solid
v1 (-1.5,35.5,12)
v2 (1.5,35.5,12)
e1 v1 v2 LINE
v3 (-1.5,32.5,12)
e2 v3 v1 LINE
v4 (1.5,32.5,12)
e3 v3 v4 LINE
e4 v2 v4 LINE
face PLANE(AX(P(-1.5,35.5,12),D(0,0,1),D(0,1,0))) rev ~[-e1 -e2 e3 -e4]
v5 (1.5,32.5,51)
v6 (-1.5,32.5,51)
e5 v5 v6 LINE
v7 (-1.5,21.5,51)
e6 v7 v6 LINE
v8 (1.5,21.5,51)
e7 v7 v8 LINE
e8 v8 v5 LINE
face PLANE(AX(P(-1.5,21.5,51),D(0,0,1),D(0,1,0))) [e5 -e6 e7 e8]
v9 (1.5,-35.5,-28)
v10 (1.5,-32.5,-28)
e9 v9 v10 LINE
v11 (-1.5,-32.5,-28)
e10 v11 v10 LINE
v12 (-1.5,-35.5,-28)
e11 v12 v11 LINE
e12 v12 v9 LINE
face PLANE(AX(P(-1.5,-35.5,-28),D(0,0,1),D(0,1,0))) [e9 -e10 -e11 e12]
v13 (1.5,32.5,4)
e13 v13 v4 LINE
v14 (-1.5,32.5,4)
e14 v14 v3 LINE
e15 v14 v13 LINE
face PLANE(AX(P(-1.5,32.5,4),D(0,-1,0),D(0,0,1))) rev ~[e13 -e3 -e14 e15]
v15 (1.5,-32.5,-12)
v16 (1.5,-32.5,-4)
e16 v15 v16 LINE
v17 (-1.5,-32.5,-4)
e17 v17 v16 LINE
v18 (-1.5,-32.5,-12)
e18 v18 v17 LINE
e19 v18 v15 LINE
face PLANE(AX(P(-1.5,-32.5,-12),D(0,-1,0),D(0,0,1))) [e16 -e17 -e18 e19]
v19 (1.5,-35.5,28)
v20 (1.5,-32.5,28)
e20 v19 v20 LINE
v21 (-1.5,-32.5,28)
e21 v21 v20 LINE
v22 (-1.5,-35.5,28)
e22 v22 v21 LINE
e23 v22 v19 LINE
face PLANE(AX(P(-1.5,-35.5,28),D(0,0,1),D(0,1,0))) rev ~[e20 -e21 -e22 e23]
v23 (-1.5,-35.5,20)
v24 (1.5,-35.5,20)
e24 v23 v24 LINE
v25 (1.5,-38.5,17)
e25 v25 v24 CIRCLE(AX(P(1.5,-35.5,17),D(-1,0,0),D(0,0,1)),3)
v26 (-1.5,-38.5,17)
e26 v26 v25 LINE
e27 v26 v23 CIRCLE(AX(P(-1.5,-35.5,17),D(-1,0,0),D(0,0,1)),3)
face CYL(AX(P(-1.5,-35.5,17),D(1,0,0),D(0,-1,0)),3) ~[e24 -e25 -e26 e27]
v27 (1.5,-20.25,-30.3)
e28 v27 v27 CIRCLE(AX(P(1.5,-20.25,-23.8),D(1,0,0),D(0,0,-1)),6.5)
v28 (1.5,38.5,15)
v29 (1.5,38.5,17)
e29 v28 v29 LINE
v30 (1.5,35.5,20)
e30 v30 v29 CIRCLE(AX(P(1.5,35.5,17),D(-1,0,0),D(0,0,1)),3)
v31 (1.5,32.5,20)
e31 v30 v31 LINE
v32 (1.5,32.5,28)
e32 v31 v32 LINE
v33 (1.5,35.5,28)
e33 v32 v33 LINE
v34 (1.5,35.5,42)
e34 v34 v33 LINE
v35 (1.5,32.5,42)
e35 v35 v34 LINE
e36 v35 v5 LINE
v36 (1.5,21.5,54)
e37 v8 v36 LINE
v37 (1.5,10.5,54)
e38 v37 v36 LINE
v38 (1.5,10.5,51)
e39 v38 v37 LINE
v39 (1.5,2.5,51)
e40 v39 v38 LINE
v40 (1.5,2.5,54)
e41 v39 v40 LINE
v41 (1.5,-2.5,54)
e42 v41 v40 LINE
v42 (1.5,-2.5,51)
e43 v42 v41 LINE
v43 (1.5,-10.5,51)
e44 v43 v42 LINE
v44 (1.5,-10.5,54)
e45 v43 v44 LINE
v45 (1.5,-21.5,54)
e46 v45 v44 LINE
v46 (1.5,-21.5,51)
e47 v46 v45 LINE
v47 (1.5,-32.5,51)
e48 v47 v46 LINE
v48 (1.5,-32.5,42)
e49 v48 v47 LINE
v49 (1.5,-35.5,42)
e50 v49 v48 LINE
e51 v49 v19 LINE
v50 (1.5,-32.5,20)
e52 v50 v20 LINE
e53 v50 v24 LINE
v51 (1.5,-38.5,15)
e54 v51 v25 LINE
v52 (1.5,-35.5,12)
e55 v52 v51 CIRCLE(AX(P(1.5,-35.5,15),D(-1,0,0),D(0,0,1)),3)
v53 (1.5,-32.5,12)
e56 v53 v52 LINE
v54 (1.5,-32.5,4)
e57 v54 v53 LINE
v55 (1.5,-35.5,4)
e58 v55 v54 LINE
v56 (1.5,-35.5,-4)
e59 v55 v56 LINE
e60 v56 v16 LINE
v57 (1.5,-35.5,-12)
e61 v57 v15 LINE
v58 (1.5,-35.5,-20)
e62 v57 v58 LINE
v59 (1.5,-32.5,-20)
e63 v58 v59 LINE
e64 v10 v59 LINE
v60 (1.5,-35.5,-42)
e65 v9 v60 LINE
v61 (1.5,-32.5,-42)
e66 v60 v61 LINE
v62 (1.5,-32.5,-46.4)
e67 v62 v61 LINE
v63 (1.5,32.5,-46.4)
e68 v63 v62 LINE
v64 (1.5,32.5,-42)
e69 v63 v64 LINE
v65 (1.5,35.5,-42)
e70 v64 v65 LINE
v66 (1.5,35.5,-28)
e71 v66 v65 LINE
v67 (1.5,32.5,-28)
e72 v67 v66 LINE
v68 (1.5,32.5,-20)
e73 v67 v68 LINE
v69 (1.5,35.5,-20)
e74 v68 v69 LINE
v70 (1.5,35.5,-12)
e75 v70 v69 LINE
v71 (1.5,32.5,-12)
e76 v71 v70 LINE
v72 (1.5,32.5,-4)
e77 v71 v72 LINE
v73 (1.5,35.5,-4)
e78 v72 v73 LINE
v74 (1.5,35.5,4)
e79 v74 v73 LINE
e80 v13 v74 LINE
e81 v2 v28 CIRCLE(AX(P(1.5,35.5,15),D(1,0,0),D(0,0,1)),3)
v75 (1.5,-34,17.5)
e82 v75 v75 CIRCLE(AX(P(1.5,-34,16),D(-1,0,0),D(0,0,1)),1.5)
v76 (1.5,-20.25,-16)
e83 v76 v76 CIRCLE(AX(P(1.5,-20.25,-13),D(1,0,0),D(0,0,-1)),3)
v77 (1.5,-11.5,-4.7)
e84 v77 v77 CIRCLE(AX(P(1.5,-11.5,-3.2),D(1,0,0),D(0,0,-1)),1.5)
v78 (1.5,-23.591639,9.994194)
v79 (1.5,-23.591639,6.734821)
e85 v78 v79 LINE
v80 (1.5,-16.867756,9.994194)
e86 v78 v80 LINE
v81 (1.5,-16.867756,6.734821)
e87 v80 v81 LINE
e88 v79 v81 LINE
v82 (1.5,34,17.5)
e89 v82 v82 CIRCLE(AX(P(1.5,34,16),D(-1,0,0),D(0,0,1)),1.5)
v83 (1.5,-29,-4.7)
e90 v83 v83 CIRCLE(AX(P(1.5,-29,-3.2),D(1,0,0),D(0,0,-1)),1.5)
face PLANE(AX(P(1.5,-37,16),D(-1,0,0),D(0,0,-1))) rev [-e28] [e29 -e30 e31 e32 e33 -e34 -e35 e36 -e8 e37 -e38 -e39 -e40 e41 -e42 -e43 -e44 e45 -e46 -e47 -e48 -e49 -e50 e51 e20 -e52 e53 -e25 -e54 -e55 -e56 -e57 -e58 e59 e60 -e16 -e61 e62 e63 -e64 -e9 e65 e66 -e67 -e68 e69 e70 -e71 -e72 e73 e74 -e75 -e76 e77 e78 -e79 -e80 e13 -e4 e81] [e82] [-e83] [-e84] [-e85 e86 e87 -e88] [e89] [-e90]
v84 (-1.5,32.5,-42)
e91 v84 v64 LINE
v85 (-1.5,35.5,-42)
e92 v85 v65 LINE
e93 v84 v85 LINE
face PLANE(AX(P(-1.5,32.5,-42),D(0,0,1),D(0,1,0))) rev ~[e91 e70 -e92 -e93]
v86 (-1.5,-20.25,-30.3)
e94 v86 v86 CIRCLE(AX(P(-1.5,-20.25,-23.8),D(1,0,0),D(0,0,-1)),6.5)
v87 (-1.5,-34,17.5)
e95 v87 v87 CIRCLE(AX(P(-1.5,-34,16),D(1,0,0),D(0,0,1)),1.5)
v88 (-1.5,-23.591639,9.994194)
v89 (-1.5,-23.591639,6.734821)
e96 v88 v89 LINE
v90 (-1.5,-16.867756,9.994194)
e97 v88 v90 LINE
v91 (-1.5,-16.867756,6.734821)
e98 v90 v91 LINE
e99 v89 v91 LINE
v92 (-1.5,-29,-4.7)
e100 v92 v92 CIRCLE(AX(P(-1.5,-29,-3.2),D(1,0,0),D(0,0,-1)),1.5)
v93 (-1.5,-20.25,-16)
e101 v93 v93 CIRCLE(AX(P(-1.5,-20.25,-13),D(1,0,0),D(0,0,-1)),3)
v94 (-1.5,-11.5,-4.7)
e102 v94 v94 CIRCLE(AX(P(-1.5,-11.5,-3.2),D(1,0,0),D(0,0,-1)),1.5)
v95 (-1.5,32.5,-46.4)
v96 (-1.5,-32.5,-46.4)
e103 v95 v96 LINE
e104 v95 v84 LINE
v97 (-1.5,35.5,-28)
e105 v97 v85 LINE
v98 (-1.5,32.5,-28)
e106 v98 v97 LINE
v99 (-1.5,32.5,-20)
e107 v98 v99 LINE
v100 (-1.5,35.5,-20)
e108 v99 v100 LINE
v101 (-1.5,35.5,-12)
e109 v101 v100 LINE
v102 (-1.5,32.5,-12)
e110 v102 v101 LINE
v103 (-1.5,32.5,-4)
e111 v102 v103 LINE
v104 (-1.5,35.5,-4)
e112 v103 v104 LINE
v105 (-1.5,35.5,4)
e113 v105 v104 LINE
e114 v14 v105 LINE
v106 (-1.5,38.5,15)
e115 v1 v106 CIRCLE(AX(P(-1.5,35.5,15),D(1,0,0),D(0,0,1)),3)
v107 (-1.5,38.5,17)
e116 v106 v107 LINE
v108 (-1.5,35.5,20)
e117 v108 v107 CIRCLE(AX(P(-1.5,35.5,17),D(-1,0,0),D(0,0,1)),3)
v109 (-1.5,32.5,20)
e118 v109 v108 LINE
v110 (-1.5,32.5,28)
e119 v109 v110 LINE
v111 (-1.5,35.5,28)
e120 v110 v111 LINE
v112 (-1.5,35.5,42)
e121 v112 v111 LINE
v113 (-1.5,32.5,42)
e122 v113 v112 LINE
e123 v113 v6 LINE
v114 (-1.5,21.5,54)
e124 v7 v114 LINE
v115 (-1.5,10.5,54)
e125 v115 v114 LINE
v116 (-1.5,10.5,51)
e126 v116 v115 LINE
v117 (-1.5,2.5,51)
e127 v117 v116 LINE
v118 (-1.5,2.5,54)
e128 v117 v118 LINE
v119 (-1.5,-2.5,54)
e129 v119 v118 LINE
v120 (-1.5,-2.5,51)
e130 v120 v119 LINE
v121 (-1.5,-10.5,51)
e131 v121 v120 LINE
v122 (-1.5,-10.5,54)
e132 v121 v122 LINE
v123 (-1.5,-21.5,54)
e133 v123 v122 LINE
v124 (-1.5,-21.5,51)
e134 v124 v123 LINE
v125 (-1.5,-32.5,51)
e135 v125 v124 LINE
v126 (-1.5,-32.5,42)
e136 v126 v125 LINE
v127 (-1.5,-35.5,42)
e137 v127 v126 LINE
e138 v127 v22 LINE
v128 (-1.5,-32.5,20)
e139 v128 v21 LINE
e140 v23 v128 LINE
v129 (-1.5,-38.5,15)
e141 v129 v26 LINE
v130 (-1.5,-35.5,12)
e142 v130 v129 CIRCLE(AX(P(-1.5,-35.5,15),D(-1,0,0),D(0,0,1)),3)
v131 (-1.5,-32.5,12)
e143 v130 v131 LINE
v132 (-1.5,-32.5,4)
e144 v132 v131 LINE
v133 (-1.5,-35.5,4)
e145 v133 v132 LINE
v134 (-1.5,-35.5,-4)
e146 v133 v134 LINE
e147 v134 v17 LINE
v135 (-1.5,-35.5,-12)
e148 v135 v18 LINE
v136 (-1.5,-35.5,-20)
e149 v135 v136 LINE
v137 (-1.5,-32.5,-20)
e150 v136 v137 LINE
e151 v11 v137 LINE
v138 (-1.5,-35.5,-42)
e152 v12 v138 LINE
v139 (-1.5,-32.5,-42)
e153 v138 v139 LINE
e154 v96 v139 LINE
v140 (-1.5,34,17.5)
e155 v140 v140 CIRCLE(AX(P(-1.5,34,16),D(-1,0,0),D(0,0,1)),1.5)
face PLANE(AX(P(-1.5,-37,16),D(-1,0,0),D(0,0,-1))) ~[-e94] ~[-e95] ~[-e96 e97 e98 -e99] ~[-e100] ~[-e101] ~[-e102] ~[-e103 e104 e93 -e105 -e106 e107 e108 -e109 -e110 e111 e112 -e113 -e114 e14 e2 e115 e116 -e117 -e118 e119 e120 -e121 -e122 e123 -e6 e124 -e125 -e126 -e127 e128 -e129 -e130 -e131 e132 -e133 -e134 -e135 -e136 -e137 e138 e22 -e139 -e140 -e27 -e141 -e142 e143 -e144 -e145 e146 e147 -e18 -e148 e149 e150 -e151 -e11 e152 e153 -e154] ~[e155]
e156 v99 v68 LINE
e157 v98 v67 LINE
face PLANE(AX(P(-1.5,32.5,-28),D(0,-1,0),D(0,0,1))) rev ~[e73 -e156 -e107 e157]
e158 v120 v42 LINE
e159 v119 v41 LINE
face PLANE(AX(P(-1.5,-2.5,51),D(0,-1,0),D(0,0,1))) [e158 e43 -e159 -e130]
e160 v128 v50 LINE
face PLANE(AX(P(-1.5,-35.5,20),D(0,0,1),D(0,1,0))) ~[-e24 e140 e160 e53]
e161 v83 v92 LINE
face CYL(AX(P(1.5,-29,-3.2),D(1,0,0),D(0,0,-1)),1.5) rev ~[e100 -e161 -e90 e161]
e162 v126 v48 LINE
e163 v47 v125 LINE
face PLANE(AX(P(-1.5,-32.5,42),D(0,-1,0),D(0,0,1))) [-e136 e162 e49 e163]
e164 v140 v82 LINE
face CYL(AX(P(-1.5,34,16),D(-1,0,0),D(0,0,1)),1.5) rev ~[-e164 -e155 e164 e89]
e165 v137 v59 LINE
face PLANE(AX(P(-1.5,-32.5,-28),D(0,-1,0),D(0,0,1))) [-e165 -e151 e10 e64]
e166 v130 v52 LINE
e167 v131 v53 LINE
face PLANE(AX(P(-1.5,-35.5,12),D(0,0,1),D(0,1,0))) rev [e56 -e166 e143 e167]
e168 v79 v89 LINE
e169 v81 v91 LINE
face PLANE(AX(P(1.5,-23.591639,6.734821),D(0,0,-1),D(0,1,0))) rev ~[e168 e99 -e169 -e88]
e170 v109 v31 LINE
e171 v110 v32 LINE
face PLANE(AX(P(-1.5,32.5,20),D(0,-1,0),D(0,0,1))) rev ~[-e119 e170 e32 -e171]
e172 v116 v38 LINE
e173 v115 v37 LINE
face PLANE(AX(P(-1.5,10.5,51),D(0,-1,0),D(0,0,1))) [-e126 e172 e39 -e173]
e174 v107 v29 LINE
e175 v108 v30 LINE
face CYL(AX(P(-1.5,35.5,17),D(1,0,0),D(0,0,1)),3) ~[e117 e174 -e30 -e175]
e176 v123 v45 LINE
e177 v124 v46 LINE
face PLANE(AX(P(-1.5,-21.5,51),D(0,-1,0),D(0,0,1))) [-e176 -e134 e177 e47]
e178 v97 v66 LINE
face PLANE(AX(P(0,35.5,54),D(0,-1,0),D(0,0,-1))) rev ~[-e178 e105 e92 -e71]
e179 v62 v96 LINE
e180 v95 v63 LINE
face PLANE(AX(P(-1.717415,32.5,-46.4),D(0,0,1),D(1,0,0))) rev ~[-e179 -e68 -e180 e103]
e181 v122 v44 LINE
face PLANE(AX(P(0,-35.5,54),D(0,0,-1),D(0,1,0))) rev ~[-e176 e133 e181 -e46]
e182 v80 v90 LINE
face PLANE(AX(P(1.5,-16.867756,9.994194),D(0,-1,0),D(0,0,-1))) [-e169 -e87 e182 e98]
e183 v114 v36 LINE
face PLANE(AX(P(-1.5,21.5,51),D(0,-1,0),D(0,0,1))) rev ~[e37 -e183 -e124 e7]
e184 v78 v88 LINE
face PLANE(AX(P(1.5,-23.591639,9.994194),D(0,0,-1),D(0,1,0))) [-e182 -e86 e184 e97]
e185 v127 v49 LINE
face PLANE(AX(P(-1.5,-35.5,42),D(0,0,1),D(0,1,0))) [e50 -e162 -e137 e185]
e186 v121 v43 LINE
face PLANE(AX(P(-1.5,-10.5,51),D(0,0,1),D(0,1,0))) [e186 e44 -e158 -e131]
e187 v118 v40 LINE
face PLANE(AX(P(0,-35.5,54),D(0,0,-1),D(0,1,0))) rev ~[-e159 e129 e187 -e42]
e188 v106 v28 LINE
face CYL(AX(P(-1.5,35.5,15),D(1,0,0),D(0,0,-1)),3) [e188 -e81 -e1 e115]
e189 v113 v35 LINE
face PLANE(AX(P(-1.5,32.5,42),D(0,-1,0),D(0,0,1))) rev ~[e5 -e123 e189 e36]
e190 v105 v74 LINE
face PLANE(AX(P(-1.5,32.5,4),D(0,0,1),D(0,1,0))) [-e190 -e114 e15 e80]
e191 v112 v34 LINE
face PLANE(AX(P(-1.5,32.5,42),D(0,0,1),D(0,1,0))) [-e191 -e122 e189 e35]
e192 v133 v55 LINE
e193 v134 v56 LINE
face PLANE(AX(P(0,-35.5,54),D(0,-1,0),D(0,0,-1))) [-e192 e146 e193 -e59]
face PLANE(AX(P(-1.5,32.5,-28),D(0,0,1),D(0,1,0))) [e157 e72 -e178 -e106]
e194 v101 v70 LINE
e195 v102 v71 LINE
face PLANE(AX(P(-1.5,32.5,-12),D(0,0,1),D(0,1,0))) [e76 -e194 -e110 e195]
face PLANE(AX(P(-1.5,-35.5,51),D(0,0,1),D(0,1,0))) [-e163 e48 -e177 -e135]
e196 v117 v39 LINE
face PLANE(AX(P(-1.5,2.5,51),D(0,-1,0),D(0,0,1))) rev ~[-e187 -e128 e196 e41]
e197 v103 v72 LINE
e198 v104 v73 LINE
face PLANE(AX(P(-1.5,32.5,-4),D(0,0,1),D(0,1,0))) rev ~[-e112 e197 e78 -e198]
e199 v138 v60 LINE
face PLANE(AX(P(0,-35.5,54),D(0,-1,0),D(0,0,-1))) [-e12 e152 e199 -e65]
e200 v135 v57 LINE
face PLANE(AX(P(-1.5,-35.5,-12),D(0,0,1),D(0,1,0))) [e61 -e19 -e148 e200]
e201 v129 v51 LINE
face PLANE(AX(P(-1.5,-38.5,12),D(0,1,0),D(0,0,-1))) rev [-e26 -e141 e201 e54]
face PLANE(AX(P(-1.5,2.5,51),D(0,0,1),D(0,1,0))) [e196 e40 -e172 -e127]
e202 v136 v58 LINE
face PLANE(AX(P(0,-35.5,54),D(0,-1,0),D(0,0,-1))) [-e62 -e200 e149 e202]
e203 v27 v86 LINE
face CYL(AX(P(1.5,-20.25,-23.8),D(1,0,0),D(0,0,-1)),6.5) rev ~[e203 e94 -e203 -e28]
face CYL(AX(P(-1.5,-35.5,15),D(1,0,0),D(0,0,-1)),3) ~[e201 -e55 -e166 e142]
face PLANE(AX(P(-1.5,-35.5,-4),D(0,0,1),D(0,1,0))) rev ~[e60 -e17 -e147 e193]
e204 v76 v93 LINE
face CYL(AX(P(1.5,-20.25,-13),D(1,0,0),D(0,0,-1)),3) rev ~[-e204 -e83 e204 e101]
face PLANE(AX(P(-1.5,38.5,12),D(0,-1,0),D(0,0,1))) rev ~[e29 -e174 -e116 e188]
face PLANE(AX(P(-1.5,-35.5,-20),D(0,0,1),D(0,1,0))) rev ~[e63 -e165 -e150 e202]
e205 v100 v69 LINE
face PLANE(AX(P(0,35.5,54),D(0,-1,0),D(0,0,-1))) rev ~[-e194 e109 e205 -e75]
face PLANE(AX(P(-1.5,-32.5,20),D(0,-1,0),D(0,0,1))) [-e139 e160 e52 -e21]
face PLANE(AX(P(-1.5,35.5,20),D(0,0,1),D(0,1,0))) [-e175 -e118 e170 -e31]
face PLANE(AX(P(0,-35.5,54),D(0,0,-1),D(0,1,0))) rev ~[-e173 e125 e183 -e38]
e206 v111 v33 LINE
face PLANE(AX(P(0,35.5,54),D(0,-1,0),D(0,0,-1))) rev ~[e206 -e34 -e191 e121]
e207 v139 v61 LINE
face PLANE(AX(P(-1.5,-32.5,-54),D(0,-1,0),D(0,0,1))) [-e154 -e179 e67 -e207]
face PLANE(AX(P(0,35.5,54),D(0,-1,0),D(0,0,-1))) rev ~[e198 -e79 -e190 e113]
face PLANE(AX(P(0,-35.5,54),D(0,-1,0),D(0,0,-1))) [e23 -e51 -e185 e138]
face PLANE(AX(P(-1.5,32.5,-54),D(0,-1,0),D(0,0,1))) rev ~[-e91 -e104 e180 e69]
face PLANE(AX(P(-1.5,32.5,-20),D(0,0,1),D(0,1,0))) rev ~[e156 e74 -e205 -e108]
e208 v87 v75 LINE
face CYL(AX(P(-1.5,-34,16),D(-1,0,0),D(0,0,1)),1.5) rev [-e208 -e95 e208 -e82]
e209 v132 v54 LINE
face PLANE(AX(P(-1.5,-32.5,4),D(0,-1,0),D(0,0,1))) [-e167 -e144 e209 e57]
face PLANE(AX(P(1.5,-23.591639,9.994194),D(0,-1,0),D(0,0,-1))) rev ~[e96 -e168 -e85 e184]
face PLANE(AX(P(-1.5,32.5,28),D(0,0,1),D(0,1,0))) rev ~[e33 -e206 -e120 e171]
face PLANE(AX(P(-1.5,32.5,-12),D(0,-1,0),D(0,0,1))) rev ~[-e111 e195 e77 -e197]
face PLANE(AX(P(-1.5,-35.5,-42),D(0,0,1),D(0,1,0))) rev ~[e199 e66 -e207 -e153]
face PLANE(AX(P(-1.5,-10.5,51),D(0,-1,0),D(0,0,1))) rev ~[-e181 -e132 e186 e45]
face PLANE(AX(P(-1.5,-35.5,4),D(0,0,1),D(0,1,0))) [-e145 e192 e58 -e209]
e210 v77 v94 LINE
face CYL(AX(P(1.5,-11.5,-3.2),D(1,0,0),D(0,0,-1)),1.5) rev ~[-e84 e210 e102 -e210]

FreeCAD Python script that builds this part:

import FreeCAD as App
import Part
import Sketcher
Q = App.Units.Quantity


def edges_at(feature, points):
    """Names of the edges that pass closest to the given points."""
    edges = feature.Shape.Edges
    near = lambda p: min(range(len(edges)), key=lambda i: edges[i].distToShape(Part.Vertex(*p))[0])
    return sorted({f"Edge{near(p) + 1}" for p in points})

doc = App.newDocument("Part")
body = doc.addObject("PartDesign::Body", "Body")

# Sketch on YZ plane
sketch1 = body.newObject("Sketcher::SketchObject", "Sketch")
sketch1.AttachmentSupport = (doc.getObject("YZ_Plane"), [""])
sketch1.MapMode = "FlatFace"
sketch1.addGeometry([
    Part.LineSegment(App.Vector(36, 54, 0), App.Vector(-36, 54, 0)),
    Part.LineSegment(App.Vector(-36, 54, 0), App.Vector(-36, -54, 0)),
    Part.LineSegment(App.Vector(-36, -54, 0), App.Vector(36, -54, 0)),
    Part.LineSegment(App.Vector(36, -54, 0), App.Vector(36, 54, 0)),
], False)
sketch1.addConstraint([
    Sketcher.Constraint("Coincident", 0, 2, 1, 1),
    Sketcher.Constraint("Coincident", 1, 2, 2, 1),
    Sketcher.Constraint("Coincident", 2, 2, 3, 1),
    Sketcher.Constraint("Coincident", 3, 2, 0, 1),
    Sketcher.Constraint("Horizontal", 0),
    Sketcher.Constraint("Vertical", 1),
    Sketcher.Constraint("Horizontal", 2),
    Sketcher.Constraint("Vertical", 3),
    Sketcher.Constraint("Symmetric", 0, 2, 2, 2, -1, 1),
    Sketcher.Constraint("DistanceX", 0, 2, 0, 1, Q("71 mm")),
    Sketcher.Constraint("DistanceY", 1, 2, 1, 1, Q("108 mm")),
])
pad1 = body.newObject("PartDesign::Pad", "Pad")
pad1.Profile = sketch1
pad1.Length = 3
pad1.Midplane = True

# Sketch on YZ plane
sketch2 = body.newObject("Sketcher::SketchObject", "Sketch001")
sketch2.AttachmentSupport = (doc.getObject("YZ_Plane"), [""])
sketch2.MapMode = "FlatFace"
sketch2.AttachmentOffset = App.Placement(App.Vector(0, 0, -1.5), App.Rotation())
sketch2.addGeometry([
    Part.LineSegment(App.Vector(-32.5, -54, 0), App.Vector(-35.5, -54, 0)),  # 0
    Part.LineSegment(App.Vector(-35.5, -54, 0), App.Vector(-35.5, -42, 0)),  # 1
    Part.LineSegment(App.Vector(-35.5, -42, 0), App.Vector(-32.5, -42, 0)),  # 2
    Part.LineSegment(App.Vector(-32.5, -42, 0), App.Vector(-32.5, -54, 0)),  # 3
    Part.LineSegment(App.Vector(-32.5, -28, 0), App.Vector(-35.5, -28, 0)),  # 4
    Part.LineSegment(App.Vector(-35.5, -28, 0), App.Vector(-35.5, -20, 0)),  # 5
    Part.LineSegment(App.Vector(-35.5, -20, 0), App.Vector(-32.5, -20, 0)),  # 6
    Part.LineSegment(App.Vector(-32.5, -20, 0), App.Vector(-32.5, -28, 0)),  # 7
    Part.LineSegment(App.Vector(-32.5, -12, 0), App.Vector(-35.5, -12, 0)),  # 8
    Part.LineSegment(App.Vector(-35.5, -12, 0), App.Vector(-35.5, -4, 0)),  # 9
    Part.LineSegment(App.Vector(-35.5, -4, 0), App.Vector(-32.5, -4, 0)),  # 10
    Part.LineSegment(App.Vector(-32.5, -4, 0), App.Vector(-32.5, -12, 0)),  # 11
    Part.LineSegment(App.Vector(-32.5, 4, 0), App.Vector(-35.5, 4, 0)),  # 12
    Part.LineSegment(App.Vector(-35.5, 4, 0), App.Vector(-35.5, 12, 0)),  # 13
    Part.LineSegment(App.Vector(-35.5, 12, 0), App.Vector(-32.5, 12, 0)),  # 14
    Part.LineSegment(App.Vector(-32.5, 12, 0), App.Vector(-32.5, 4, 0)),  # 15
    Part.LineSegment(App.Vector(-32.5, 20, 0), App.Vector(-35.5, 20, 0)),  # 16
    Part.LineSegment(App.Vector(-35.5, 20, 0), App.Vector(-35.5, 28, 0)),  # 17
    Part.LineSegment(App.Vector(-35.5, 28, 0), App.Vector(-32.5, 28, 0)),  # 18
    Part.LineSegment(App.Vector(-32.5, 28, 0), App.Vector(-32.5, 20, 0)),  # 19
    Part.LineSegment(App.Vector(-32.5, 42, 0), App.Vector(-35.5, 42, 0)),  # 20
    Part.LineSegment(App.Vector(-35.5, 42, 0), App.Vector(-35.5, 54, 0)),  # 21
    Part.LineSegment(App.Vector(-35.5, 54, 0), App.Vector(-32.5, 54, 0)),  # 22
    Part.LineSegment(App.Vector(-32.5, 54, 0), App.Vector(-32.5, 42, 0)),  # 23
    Part.LineSegment(App.Vector(35.5, 42, 0), App.Vector(32.5, 42, 0)),  # 24
    Part.LineSegment(App.Vector(32.5, 42, 0), App.Vector(32.5, 54, 0)),  # 25
    Part.LineSegment(App.Vector(32.5, 54, 0), App.Vector(35.5, 54, 0)),  # 26
    Part.LineSegment(App.Vector(35.5, 54, 0), App.Vector(35.5, 42, 0)),  # 27
    Part.LineSegment(App.Vector(35.5, 20, 0), App.Vector(32.5, 20, 0)),  # 28
    Part.LineSegment(App.Vector(32.5, 20, 0), App.Vector(32.5, 28, 0)),  # 29
    Part.LineSegment(App.Vector(32.5, 28, 0), App.Vector(35.5, 28, 0)),  # 30
    Part.LineSegment(App.Vector(35.5, 28, 0), App.Vector(35.5, 20, 0)),  # 31
    Part.LineSegment(App.Vector(35.5, 4, 0), App.Vector(32.5, 4, 0)),  # 32
    Part.LineSegment(App.Vector(32.5, 4, 0), App.Vector(32.5, 12, 0)),  # 33
    Part.LineSegment(App.Vector(32.5, 12, 0), App.Vector(35.5, 12, 0)),  # 34
    Part.LineSegment(App.Vector(35.5, 12, 0), App.Vector(35.5, 4, 0)),  # 35
    Part.LineSegment(App.Vector(35.5, -12, 0), App.Vector(32.5, -12, 0)),  # 36
    Part.LineSegment(App.Vector(32.5, -12, 0), App.Vector(32.5, -4, 0)),  # 37
    Part.LineSegment(App.Vector(32.5, -4, 0), App.Vector(35.5, -4, 0)),  # 38
    Part.LineSegment(App.Vector(35.5, -4, 0), App.Vector(35.5, -12, 0)),  # 39
    Part.LineSegment(App.Vector(35.5, -28, 0), App.Vector(32.5, -28, 0)),  # 40
    Part.LineSegment(App.Vector(32.5, -28, 0), App.Vector(32.5, -20, 0)),  # 41
    Part.LineSegment(App.Vector(32.5, -20, 0), App.Vector(35.5, -20, 0)),  # 42
    Part.LineSegment(App.Vector(35.5, -20, 0), App.Vector(35.5, -28, 0)),  # 43
    Part.LineSegment(App.Vector(35.5, -54, 0), App.Vector(32.5, -54, 0)),  # 44
    Part.LineSegment(App.Vector(32.5, -54, 0), App.Vector(32.5, -42, 0)),  # 45
    Part.LineSegment(App.Vector(32.5, -42, 0), App.Vector(35.5, -42, 0)),  # 46
    Part.LineSegment(App.Vector(35.5, -42, 0), App.Vector(35.5, -54, 0)),  # 47
], False)
sketch2.addConstraint([
    Sketcher.Constraint("Coincident", 0, 2, 1, 1),
    Sketcher.Constraint("Coincident", 1, 2, 2, 1),
    Sketcher.Constraint("Coincident", 2, 2, 3, 1),
    Sketcher.Constraint("Coincident", 3, 2, 0, 1),
    Sketcher.Constraint("Coincident", 4, 2, 5, 1),
    Sketcher.Constraint("Coincident", 5, 2, 6, 1),
    Sketcher.Constraint("Coincident", 6, 2, 7, 1),
    Sketcher.Constraint("Coincident", 7, 2, 4, 1),
    Sketcher.Constraint("Coincident", 8, 2, 9, 1),
    Sketcher.Constraint("Coincident", 9, 2, 10, 1),
    Sketcher.Constraint("Coincident", 10, 2, 11, 1),
    Sketcher.Constraint("Coincident", 11, 2, 8, 1),
    Sketcher.Constraint("Coincident", 12, 2, 13, 1),
    Sketcher.Constraint("Coincident", 13, 2, 14, 1),
    Sketcher.Constraint("Coincident", 14, 2, 15, 1),
    Sketcher.Constraint("Coincident", 15, 2, 12, 1),
    Sketcher.Constraint("Coincident", 16, 2, 17, 1),
    Sketcher.Constraint("Coincident", 17, 2, 18, 1),
    Sketcher.Constraint("Coincident", 18, 2, 19, 1),
    Sketcher.Constraint("Coincident", 19, 2, 16, 1),
    Sketcher.Constraint("Coincident", 20, 2, 21, 1),
    Sketcher.Constraint("Coincident", 21, 2, 22, 1),
    Sketcher.Constraint("Coincident", 22, 2, 23, 1),
    Sketcher.Constraint("Coincident", 23, 2, 20, 1),
    Sketcher.Constraint("Coincident", 24, 2, 25, 1),
    Sketcher.Constraint("Coincident", 25, 2, 26, 1),
    Sketcher.Constraint("Coincident", 26, 2, 27, 1),
    Sketcher.Constraint("Coincident", 27, 2, 24, 1),
    Sketcher.Constraint("Coincident", 28, 2, 29, 1),
    Sketcher.Constraint("Coincident", 29, 2, 30, 1),
    Sketcher.Constraint("Coincident", 30, 2, 31, 1),
    Sketcher.Constraint("Coincident", 31, 2, 28, 1),
    Sketcher.Constraint("Coincident", 32, 2, 33, 1),
    Sketcher.Constraint("Coincident", 33, 2, 34, 1),
    Sketcher.Constraint("Coincident", 34, 2, 35, 1),
    Sketcher.Constraint("Coincident", 35, 2, 32, 1),
    Sketcher.Constraint("Coincident", 36, 2, 37, 1),
    Sketcher.Constraint("Coincident", 37, 2, 38, 1),
    Sketcher.Constraint("Coincident", 38, 2, 39, 1),
    Sketcher.Constraint("Coincident", 39, 2, 36, 1),
    Sketcher.Constraint("Coincident", 40, 2, 41, 1),
    Sketcher.Constraint("Coincident", 41, 2, 42, 1),
    Sketcher.Constraint("Coincident", 42, 2, 43, 1),
    Sketcher.Constraint("Coincident", 43, 2, 40, 1),
    Sketcher.Constraint("Coincident", 44, 2, 45, 1),
    Sketcher.Constraint("Coincident", 45, 2, 46, 1),
    Sketcher.Constraint("Coincident", 46, 2, 47, 1),
    Sketcher.Constraint("Coincident", 47, 2, 44, 1),
    Sketcher.Constraint("Horizontal", 0),
    Sketcher.Constraint("Vertical", 1),
    Sketcher.Constraint("Horizontal", 2),
    Sketcher.Constraint("Vertical", 3),
    Sketcher.Constraint("Horizontal", 4),
    Sketcher.Constraint("Vertical", 5),
    Sketcher.Constraint("Horizontal", 6),
    Sketcher.Constraint("Vertical", 7),
    Sketcher.Constraint("Horizontal", 8),
    Sketcher.Constraint("Vertical", 9),
    Sketcher.Constraint("Horizontal", 10),
    Sketcher.Constraint("Vertical", 11),
    Sketcher.Constraint("Horizontal", 12),
    Sketcher.Constraint("Vertical", 13),
    Sketcher.Constraint("Horizontal", 14),
    Sketcher.Constraint("Vertical", 15),
    Sketcher.Constraint("Horizontal", 16),
    Sketcher.Constraint("Vertical", 17),
    Sketcher.Constraint("Horizontal", 18),
    Sketcher.Constraint("Vertical", 19),
    Sketcher.Constraint("Horizontal", 20),
    Sketcher.Constraint("Vertical", 21),
    Sketcher.Constraint("Horizontal", 22),
    Sketcher.Constraint("Vertical", 23),
    Sketcher.Constraint("Horizontal", 24),
    Sketcher.Constraint("Vertical", 25),
    Sketcher.Constraint("Horizontal", 26),
    Sketcher.Constraint("Vertical", 27),
    Sketcher.Constraint("Horizontal", 28),
    Sketcher.Constraint("Vertical", 29),
    Sketcher.Constraint("Horizontal", 30),
    Sketcher.Constraint("Vertical", 31),
    Sketcher.Constraint("Horizontal", 32),
    Sketcher.Constraint("Vertical", 33),
    Sketcher.Constraint("Horizontal", 34),
    Sketcher.Constraint("Vertical", 35),
    Sketcher.Constraint("Horizontal", 36),
    Sketcher.Constraint("Vertical", 37),
    Sketcher.Constraint("Horizontal", 38),
    Sketcher.Constraint("Vertical", 39),
    Sketcher.Constraint("Horizontal", 40),
    Sketcher.Constraint("Vertical", 41),
    Sketcher.Constraint("Horizontal", 42),
    Sketcher.Constraint("Vertical", 43),
    Sketcher.Constraint("Horizontal", 44),
    Sketcher.Constraint("Vertical", 45),
    Sketcher.Constraint("Horizontal", 46),
    Sketcher.Constraint("Vertical", 47),
    Sketcher.Constraint("Symmetric", 2, 2, 24, 2, -1, 1),
    Sketcher.Constraint("Symmetric", 0, 2, 26, 2, -1, 1),
    Sketcher.Constraint("Symmetric", 6, 2, 28, 2, -1, 1),
    Sketcher.Constraint("Symmetric", 4, 2, 30, 2, -1, 1),
    Sketcher.Constraint("Symmetric", 10, 2, 32, 2, -1, 1),
    Sketcher.Constraint("Symmetric", 8, 2, 34, 2, -1, 1),
    Sketcher.Constraint("Symmetric", 14, 2, 36, 2, -1, 1),
    Sketcher.Constraint("Symmetric", 12, 2, 38, 2, -1, 1),
    Sketcher.Constraint("Symmetric", 18, 2, 40, 2, -1, 1),
    Sketcher.Constraint("Symmetric", 16, 2, 42, 2, -1, 1),
    Sketcher.Constraint("Symmetric", 22, 2, 44, 2, -1, 1),
    Sketcher.Constraint("Symmetric", 20, 2, 46, 2, -1, 1),
    Sketcher.Constraint("Symmetric", 23, 2, 24, 2, -2),
    Sketcher.Constraint("Symmetric", 21, 2, 26, 2, -2),
    Sketcher.Constraint("Symmetric", 19, 2, 28, 2, -2),
    Sketcher.Constraint("Symmetric", 17, 2, 30, 2, -2),
    Sketcher.Constraint("Symmetric", 15, 2, 32, 2, -2),
    Sketcher.Constraint("Symmetric", 13, 2, 34, 2, -2),
    Sketcher.Constraint("Vertical", 1, 2, 4, 2),
    Sketcher.Constraint("Vertical", 3, 2, 6, 2),
    Sketcher.Constraint("Vertical", 5, 2, 8, 2),
    Sketcher.Constraint("Vertical", 7, 2, 10, 2),
    Sketcher.Constraint("Equal", 7, 9),
    Sketcher.Constraint("DistanceX", 0, 2, 0, 1, Q("3 mm")),
    Sketcher.Constraint("DistanceY", 1, 1, 1, 2, Q("12 mm")),
    Sketcher.Constraint("DistanceY", 5, 1, 5, 2, Q("8 mm")),
    Sketcher.Constraint("DistanceY", 0, 2, -1, 1, Q("54 mm")),
    Sketcher.Constraint("DistanceY", 4, 2, -1, 1, Q("28 mm")),
    Sketcher.Constraint("DistanceY", 8, 2, -1, 1, Q("12 mm")),
    Sketcher.Constraint("DistanceX", 23, 2, 24, 2, Q("65 mm")),
])
pocket1 = body.newObject("PartDesign::Pocket", "Pocket")
pocket1.Profile = sketch2
pocket1.Length = 3
pocket1.Reversed = True

# Sketch on YZ plane
sketch3 = body.newObject("Sketcher::SketchObject", "Sketch002")
sketch3.AttachmentSupport = (doc.getObject("YZ_Plane"), [""])
sketch3.MapMode = "FlatFace"
sketch3.AttachmentOffset = App.Placement(App.Vector(0, 0, -1.5), App.Rotation())
sketch3.addGeometry([
    Part.LineSegment(App.Vector(38.5, 12, 0), App.Vector(35.5, 12, 0)),
    Part.LineSegment(App.Vector(35.5, 12, 0), App.Vector(35.5, 20, 0)),
    Part.LineSegment(App.Vector(35.5, 20, 0), App.Vector(38.5, 20, 0)),
    Part.LineSegment(App.Vector(38.5, 20, 0), App.Vector(38.5, 12, 0)),
], False)
sketch3.addConstraint([
    Sketcher.Constraint("Coincident", 0, 2, 1, 1),
    Sketcher.Constraint("Coincident", 1, 2, 2, 1),
    Sketcher.Constraint("Coincident", 2, 2, 3, 1),
    Sketcher.Constraint("Coincident", 3, 2, 0, 1),
    Sketcher.Constraint("Horizontal", 0),
    Sketcher.Constraint("Vertical", 1),
    Sketcher.Constraint("Horizontal", 2),
    Sketcher.Constraint("Vertical", 3),
    Sketcher.Constraint("DistanceX", 0, 2, 0, 1, Q("3 mm")),
    Sketcher.Constraint("DistanceY", 1, 1, 1, 2, Q("8 mm")),
    Sketcher.Constraint("DistanceY", -1, 1, 0, 2, Q("12 mm")),
    Sketcher.Constraint("DistanceX", -1, 1, 0, 2, Q("35.5 mm")),
])
pad2 = body.newObject("PartDesign::Pad", "Pad001")
pad2.Profile = sketch3
pad2.Length = 3
doc.recompute()

fillet = body.newObject("PartDesign::Fillet", "Fillet")
fillet.Base = (pad2, edges_at(pad2, [(0, 38.5, 12), (0, 38.5, 20)]))
fillet.Radius = 3

# Sketch on YZ plane
sketch4 = body.newObject("Sketcher::SketchObject", "Sketch003")
sketch4.AttachmentSupport = (doc.getObject("YZ_Plane"), [""])
sketch4.MapMode = "FlatFace"
sketch4.AttachmentOffset = App.Placement(App.Vector(0, 0, -1.5), App.Rotation())
sketch4.addGeometry(Part.Circle(App.Vector(34, 16, 0), App.Vector(0, 0, 1), 1.5), False)
sketch4.addConstraint([
    Sketcher.Constraint("Diameter", 0, Q("3 mm")),
    Sketcher.Constraint("DistanceX", -1, 1, 0, 3, Q("34 mm")),
    Sketcher.Constraint("DistanceY", -1, 1, 0, 3, Q("16 mm")),
])
pocket2 = body.newObject("PartDesign::Pocket", "Pocket001")
pocket2.Profile = sketch4
pocket2.Length = 13
pocket2.Reversed = True
doc.recompute()

mirrored = body.newObject("PartDesign::Mirrored", "Mirrored")
mirrored.Originals = [pad2, pocket2]
mirrored.MirrorPlane = (doc.getObject("XZ_Plane"), [""])
body.Tip = mirrored
doc.recompute()

fillet2 = body.newObject("PartDesign::Fillet", "Fillet001")
fillet2.Base = (mirrored, edges_at(mirrored, [(0, -38.5, 12), (0, -38.5, 20)]))
fillet2.Radius = 3

# Sketch on YZ plane
sketch5 = body.newObject("Sketcher::SketchObject", "Sketch004")
sketch5.AttachmentSupport = (doc.getObject("YZ_Plane"), [""])
sketch5.MapMode = "FlatFace"
sketch5.AttachmentOffset = App.Placement(App.Vector(0, 0, -1.5), App.Rotation())
sketch5.addGeometry([
    Part.LineSegment(App.Vector(-21.5, 51, 0), App.Vector(-35.5, 51, 0)),  # 0
    Part.LineSegment(App.Vector(-35.5, 51, 0), App.Vector(-35.5, 54, 0)),  # 1
    Part.LineSegment(App.Vector(-35.5, 54, 0), App.Vector(-21.5, 54, 0)),  # 2
    Part.LineSegment(App.Vector(-21.5, 54, 0), App.Vector(-21.5, 51, 0)),  # 3
    Part.LineSegment(App.Vector(-2.5, 51, 0), App.Vector(-10.5, 51, 0)),  # 4
    Part.LineSegment(App.Vector(-10.5, 51, 0), App.Vector(-10.5, 54, 0)),  # 5
    Part.LineSegment(App.Vector(-10.5, 54, 0), App.Vector(-2.5, 54, 0)),  # 6
    Part.LineSegment(App.Vector(-2.5, 54, 0), App.Vector(-2.5, 51, 0)),  # 7
    Part.LineSegment(App.Vector(10.5, 51, 0), App.Vector(2.5, 51, 0)),  # 8
    Part.LineSegment(App.Vector(2.5, 51, 0), App.Vector(2.5, 54, 0)),  # 9
    Part.LineSegment(App.Vector(2.5, 54, 0), App.Vector(10.5, 54, 0)),  # 10
    Part.LineSegment(App.Vector(10.5, 54, 0), App.Vector(10.5, 51, 0)),  # 11
    Part.LineSegment(App.Vector(35.5, 51, 0), App.Vector(21.5, 51, 0)),  # 12
    Part.LineSegment(App.Vector(21.5, 51, 0), App.Vector(21.5, 54, 0)),  # 13
    Part.LineSegment(App.Vector(21.5, 54, 0), App.Vector(35.5, 54, 0)),  # 14
    Part.LineSegment(App.Vector(35.5, 54, 0), App.Vector(35.5, 51, 0)),  # 15
], False)
sketch5.addConstraint([
    Sketcher.Constraint("Coincident", 0, 2, 1, 1),
    Sketcher.Constraint("Coincident", 1, 2, 2, 1),
    Sketcher.Constraint("Coincident", 2, 2, 3, 1),
    Sketcher.Constraint("Coincident", 3, 2, 0, 1),
    Sketcher.Constraint("Coincident", 4, 2, 5, 1),
    Sketcher.Constraint("Coincident", 5, 2, 6, 1),
    Sketcher.Constraint("Coincident", 6, 2, 7, 1),
    Sketcher.Constraint("Coincident", 7, 2, 4, 1),
    Sketcher.Constraint("Coincident", 8, 2, 9, 1),
    Sketcher.Constraint("Coincident", 9, 2, 10, 1),
    Sketcher.Constraint("Coincident", 10, 2, 11, 1),
    Sketcher.Constraint("Coincident", 11, 2, 8, 1),
    Sketcher.Constraint("Coincident", 12, 2, 13, 1),
    Sketcher.Constraint("Coincident", 13, 2, 14, 1),
    Sketcher.Constraint("Coincident", 14, 2, 15, 1),
    Sketcher.Constraint("Coincident", 15, 2, 12, 1),
    Sketcher.Constraint("Horizontal", 0),
    Sketcher.Constraint("Vertical", 1),
    Sketcher.Constraint("Horizontal", 2),
    Sketcher.Constraint("Vertical", 3),
    Sketcher.Constraint("Horizontal", 4),
    Sketcher.Constraint("Vertical", 5),
    Sketcher.Constraint("Horizontal", 6),
    Sketcher.Constraint("Vertical", 7),
    Sketcher.Constraint("Horizontal", 8),
    Sketcher.Constraint("Vertical", 9),
    Sketcher.Constraint("Horizontal", 10),
    Sketcher.Constraint("Vertical", 11),
    Sketcher.Constraint("Horizontal", 12),
    Sketcher.Constraint("Vertical", 13),
    Sketcher.Constraint("Horizontal", 14),
    Sketcher.Constraint("Vertical", 15),
    Sketcher.Constraint("Symmetric", 7, 2, 8, 2, -2),
    Sketcher.Constraint("Symmetric", 5, 2, 10, 2, -2),
    Sketcher.Constraint("Symmetric", 3, 2, 12, 2, -2),
    Sketcher.Constraint("Symmetric", 1, 2, 14, 2, -2),
    Sketcher.Constraint("Horizontal", 3, 2, 4, 2),
    Sketcher.Constraint("Horizontal", 2, 2, 5, 2),
    Sketcher.Constraint("DistanceX", 0, 2, 0, 1, Q("14 mm")),
    Sketcher.Constraint("DistanceX", 4, 2, 4, 1, Q("8 mm")),
    Sketcher.Constraint("DistanceY", 1, 1, 1, 2, Q("3 mm")),
    Sketcher.Constraint("DistanceY", -1, 1, 0, 2, Q("51 mm")),
    Sketcher.Constraint("DistanceX", 3, 2, 4, 2, Q("11 mm")),
    Sketcher.Constraint("DistanceX", 7, 2, 8, 2, Q("5 mm")),
])
pocket3 = body.newObject("PartDesign::Pocket", "Pocket002")
pocket3.Profile = sketch5
pocket3.Length = 3
pocket3.Reversed = True

# Sketch on XZ plane
sketch6 = body.newObject("Sketcher::SketchObject", "Sketch005")
sketch6.AttachmentSupport = (doc.getObject("XZ_Plane"), [""])
sketch6.MapMode = "FlatFace"
sketch6.AttachmentOffset = App.Placement(App.Vector(0, 0, -32.5), App.Rotation())
sketch6.addGeometry([
    Part.LineSegment(App.Vector(-1.7, -54, 0), App.Vector(-1.7, -46.4, 0)),
    Part.LineSegment(App.Vector(-1.7, -46.4, 0), App.Vector(1.5, -46.4, 0)),
    Part.LineSegment(App.Vector(1.5, -46.4, 0), App.Vector(1.5, -54, 0)),
    Part.LineSegment(App.Vector(1.5, -54, 0), App.Vector(-1.7, -54, 0)),
], False)
sketch6.addConstraint([
    Sketcher.Constraint("Coincident", 0, 2, 1, 1),
    Sketcher.Constraint("Coincident", 1, 2, 2, 1),
    Sketcher.Constraint("Coincident", 2, 2, 3, 1),
    Sketcher.Constraint("Coincident", 3, 2, 0, 1),
    Sketcher.Constraint("Vertical", 0),
    Sketcher.Constraint("Horizontal", 1),
    Sketcher.Constraint("Vertical", 2),
    Sketcher.Constraint("Horizontal", 3),
    Sketcher.Constraint("DistanceY", 0, 1, 0, 2, Q("7.6 mm")),
    Sketcher.Constraint("DistanceY", 2, 2, -1, 1, Q("54 mm")),
    Sketcher.Constraint("DistanceX", -1, 1, 1, 2, Q("1.5 mm")),
    Sketcher.Constraint("DistanceX", 1, 1, 1, 2, Q("3.217415 mm")),
])
pocket4 = body.newObject("PartDesign::Pocket", "Pocket003")
pocket4.Profile = sketch6
pocket4.Length = 73
pocket4.Reversed = True

# Sketch on YZ plane
sketch7 = body.newObject("Sketcher::SketchObject", "Sketch006")
sketch7.AttachmentSupport = (doc.getObject("YZ_Plane"), [""])
sketch7.MapMode = "FlatFace"
sketch7.AttachmentOffset = App.Placement(App.Vector(0, 0, 1.5), App.Rotation())
sketch7.addGeometry([
    Part.Circle(App.Vector(-20.2, -23.8, 0), App.Vector(0, 0, 1), 6.5),  # 0
    Part.Circle(App.Vector(-20.2, -13, 0), App.Vector(0, 0, 1), 3),  # 1
    Part.Circle(App.Vector(-11.5, -3.2, 0), App.Vector(0, 0, 1), 1.5),  # 2
    Part.Circle(App.Vector(-29, -3.2, 0), App.Vector(0, 0, 1), 1.5),  # 3
    Part.LineSegment(App.Vector(-16.9, 10, 0), App.Vector(-23.6, 10, 0)),  # 4
    Part.LineSegment(App.Vector(-23.6, 10, 0), App.Vector(-23.6, 6.7, 0)),  # 5
    Part.LineSegment(App.Vector(-23.6, 6.7, 0), App.Vector(-16.9, 6.7, 0)),  # 6
    Part.LineSegment(App.Vector(-16.9, 6.7, 0), App.Vector(-16.9, 10, 0)),  # 7
], False)
sketch7.addConstraint([
    Sketcher.Constraint("Coincident", 4, 2, 5, 1),
    Sketcher.Constraint("Coincident", 5, 2, 6, 1),
    Sketcher.Constraint("Coincident", 6, 2, 7, 1),
    Sketcher.Constraint("Coincident", 7, 2, 4, 1),
    Sketcher.Constraint("Horizontal", 4),
    Sketcher.Constraint("Vertical", 5),
    Sketcher.Constraint("Horizontal", 6),
    Sketcher.Constraint("Vertical", 7),
    Sketcher.Constraint("Equal", 2, 3),
    Sketcher.Constraint("Horizontal", 2, 3, 3, 3),
    Sketcher.Constraint("Vertical", 0, 3, 1, 3),
    Sketcher.Constraint("Diameter", 0, Q("13 mm")),
    Sketcher.Constraint("Diameter", 1, Q("6 mm")),
    Sketcher.Constraint("Diameter", 2, Q("3 mm")),
    Sketcher.Constraint("DistanceY", 1, 3, -1, 1, Q("13 mm")),
    Sketcher.Constraint("DistanceX", 3, 3, -1, 1, Q("29 mm")),
    Sketcher.Constraint("DistanceY", 0, 3, -1, 1, Q("23.8 mm")),
    Sketcher.Constraint("DistanceX", 2, 3, -1, 1, Q("11.5 mm")),
    Sketcher.Constraint("DistanceY", 2, 3, -1, 1, Q("3.2 mm")),
    Sketcher.Constraint("DistanceX", 0, 3, -1, 1, Q("20.25 mm")),
    Sketcher.Constraint("DistanceX", 4, 2, 4, 1, Q("6.723882 mm")),
    Sketcher.Constraint("DistanceY", 5, 2, 5, 1, Q("3.259374 mm")),
    Sketcher.Constraint("DistanceX", 4, 2, -1, 1, Q("23.591639 mm")),
    Sketcher.Constraint("DistanceY", -1, 1, 5, 2, Q("6.734821 mm")),
])
pocket5 = body.newObject("PartDesign::Pocket", "Pocket004")
pocket5.Profile = sketch7
pocket5.Length = 23

doc.recompute()
